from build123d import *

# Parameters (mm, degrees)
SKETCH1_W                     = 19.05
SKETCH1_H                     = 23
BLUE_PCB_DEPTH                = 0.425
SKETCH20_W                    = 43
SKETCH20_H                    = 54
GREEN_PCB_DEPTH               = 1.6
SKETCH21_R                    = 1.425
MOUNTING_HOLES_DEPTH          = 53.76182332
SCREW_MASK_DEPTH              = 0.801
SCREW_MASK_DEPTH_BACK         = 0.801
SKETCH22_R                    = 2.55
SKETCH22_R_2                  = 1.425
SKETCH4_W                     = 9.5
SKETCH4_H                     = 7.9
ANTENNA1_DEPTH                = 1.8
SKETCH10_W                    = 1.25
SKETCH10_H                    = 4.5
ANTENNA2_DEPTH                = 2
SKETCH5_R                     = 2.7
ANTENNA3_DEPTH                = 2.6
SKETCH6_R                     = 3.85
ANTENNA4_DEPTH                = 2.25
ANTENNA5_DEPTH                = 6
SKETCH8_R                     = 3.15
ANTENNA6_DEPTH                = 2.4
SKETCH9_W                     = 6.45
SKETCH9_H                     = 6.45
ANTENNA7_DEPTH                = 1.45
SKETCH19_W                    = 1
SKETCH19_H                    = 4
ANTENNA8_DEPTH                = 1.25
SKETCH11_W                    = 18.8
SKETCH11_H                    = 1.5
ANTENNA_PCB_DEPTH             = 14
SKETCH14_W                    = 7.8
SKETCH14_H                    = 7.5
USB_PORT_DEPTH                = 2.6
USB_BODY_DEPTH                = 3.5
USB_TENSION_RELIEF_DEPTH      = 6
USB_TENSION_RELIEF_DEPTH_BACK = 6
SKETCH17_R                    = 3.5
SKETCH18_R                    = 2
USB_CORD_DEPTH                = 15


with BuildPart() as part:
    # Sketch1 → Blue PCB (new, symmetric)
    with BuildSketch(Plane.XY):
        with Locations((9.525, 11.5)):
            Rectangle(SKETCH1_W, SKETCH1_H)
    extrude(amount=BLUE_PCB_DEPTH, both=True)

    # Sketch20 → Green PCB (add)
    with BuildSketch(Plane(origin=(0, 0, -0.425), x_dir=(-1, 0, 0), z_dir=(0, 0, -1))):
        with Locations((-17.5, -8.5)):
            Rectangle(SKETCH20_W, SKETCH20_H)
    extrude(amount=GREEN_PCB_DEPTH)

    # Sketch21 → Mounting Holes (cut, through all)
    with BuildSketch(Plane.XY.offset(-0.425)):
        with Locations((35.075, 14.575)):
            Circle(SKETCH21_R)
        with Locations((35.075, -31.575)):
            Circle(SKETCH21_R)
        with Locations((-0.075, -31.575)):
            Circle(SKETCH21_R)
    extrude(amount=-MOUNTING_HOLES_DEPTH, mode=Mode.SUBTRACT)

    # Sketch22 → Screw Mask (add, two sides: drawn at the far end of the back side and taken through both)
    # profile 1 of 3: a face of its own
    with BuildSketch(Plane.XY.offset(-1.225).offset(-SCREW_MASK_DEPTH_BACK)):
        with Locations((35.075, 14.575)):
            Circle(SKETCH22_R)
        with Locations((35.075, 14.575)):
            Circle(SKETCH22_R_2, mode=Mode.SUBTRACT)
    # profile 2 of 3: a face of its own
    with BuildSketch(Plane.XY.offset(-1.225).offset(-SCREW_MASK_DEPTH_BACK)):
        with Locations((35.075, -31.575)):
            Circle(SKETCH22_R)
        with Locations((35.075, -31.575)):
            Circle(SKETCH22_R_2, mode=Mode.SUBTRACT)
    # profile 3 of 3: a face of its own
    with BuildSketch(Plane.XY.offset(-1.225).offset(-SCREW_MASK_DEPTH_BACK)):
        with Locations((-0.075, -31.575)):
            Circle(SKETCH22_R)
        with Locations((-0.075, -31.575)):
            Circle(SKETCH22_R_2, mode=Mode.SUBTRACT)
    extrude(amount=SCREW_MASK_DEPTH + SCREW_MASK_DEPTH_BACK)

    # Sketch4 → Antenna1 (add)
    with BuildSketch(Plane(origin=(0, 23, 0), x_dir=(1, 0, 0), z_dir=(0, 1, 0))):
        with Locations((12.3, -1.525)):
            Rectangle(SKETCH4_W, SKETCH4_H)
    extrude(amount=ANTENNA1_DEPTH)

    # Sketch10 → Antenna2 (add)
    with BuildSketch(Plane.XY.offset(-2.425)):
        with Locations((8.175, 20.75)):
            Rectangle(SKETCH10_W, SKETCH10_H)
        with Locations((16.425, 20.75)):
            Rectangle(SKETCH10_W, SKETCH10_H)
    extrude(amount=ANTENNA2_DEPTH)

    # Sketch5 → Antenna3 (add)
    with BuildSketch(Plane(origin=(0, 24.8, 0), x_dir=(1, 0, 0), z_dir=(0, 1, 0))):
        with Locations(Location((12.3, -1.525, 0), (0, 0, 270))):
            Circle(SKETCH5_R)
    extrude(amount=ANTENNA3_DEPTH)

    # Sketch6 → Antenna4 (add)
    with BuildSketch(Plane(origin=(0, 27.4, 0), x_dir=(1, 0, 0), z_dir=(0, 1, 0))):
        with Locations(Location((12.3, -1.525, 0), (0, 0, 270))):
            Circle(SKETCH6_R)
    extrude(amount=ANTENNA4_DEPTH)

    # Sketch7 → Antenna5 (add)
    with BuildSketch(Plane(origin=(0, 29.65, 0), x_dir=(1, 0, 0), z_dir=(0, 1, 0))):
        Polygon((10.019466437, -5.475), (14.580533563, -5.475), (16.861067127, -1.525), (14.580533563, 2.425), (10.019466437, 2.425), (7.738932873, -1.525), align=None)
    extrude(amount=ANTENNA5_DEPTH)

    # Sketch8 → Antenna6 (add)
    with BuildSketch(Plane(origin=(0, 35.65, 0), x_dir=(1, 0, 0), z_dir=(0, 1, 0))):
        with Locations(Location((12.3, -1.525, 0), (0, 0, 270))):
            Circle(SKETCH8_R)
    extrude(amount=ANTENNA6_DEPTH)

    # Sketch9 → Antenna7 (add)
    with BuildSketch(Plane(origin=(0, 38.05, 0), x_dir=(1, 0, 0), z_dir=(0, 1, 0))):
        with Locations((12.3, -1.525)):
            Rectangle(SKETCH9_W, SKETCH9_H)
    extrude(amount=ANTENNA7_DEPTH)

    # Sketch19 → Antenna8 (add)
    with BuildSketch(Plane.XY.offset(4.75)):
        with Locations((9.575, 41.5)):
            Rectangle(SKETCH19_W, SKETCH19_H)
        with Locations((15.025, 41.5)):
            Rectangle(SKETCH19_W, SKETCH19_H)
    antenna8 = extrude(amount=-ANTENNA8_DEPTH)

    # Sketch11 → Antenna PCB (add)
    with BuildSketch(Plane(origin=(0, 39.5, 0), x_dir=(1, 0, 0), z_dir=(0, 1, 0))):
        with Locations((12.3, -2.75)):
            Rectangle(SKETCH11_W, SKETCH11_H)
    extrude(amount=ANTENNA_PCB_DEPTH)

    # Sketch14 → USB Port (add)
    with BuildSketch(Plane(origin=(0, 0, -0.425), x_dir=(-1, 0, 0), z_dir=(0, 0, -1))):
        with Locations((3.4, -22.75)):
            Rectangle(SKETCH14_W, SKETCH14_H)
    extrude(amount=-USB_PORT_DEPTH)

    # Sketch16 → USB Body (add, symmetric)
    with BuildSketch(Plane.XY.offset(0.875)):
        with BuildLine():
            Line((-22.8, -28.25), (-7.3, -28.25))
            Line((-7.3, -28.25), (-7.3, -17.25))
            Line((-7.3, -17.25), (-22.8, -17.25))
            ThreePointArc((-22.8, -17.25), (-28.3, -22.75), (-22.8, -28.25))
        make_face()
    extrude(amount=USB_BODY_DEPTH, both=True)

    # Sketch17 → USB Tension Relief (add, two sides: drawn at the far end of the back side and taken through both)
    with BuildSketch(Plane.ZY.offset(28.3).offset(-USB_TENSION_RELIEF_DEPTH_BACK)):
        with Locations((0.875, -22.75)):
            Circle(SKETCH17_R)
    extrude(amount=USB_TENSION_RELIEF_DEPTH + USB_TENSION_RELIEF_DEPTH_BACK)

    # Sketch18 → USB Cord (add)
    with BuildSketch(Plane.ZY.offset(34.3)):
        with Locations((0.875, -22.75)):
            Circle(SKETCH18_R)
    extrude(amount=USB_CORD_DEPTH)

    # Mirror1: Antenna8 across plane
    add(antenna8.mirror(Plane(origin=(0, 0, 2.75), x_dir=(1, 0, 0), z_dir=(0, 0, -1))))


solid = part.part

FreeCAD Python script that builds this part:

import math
import FreeCAD as App
import Part
import Sketcher
Q = App.Units.Quantity


def add_polygon(sketch, points):
    """Adds a closed chain of lines whose ends are joined by coincident constraints."""
    first, n = sketch.GeometryCount, len(points)
    for a, b in zip(points, points[1:] + points[:1]):
        sketch.addGeometry(Part.LineSegment(App.Vector(*a, 0), App.Vector(*b, 0)), False)
    for i in range(n):
        sketch.addConstraint(Sketcher.Constraint("Coincident", first + i, 2, first + (i + 1) % n, 1))

doc = App.newDocument("Part")
body = doc.addObject("PartDesign::Body", "Body")

# Sketch on XY plane
sketch1 = body.newObject("Sketcher::SketchObject", "Sketch")
sketch1.AttachmentSupport = (doc.getObject("XY_Plane"), [""])
sketch1.MapMode = "FlatFace"
add_polygon(sketch1, [(0, 23), (0, 0), (19.05, 0), (19.05, 23)])  # lines 0-3
sketch1.addConstraint(Sketcher.Constraint("Vertical", 0))
sketch1.addConstraint(Sketcher.Constraint("Horizontal", 1))
sketch1.addConstraint(Sketcher.Constraint("Vertical", 2))
sketch1.addConstraint(Sketcher.Constraint("Horizontal", 3))
sketch1.addConstraint(Sketcher.Constraint("Coincident", 0, 2, -1, 1))
sketch1.addConstraint(Sketcher.Constraint("DistanceY", 0, 2, 0, 1, Q("23 mm")))
sketch1.addConstraint(Sketcher.Constraint("DistanceX", 1, 1, 1, 2, Q("19.05 mm")))
pad1 = body.newObject("PartDesign::Pad", "Pad")
pad1.Profile = sketch1
pad1.Length = 0.85
pad1.Midplane = True

# Sketch on XY plane
sketch2 = body.newObject("Sketcher::SketchObject", "Sketch001")
sketch2.AttachmentSupport = (doc.getObject("XY_Plane"), [""])
sketch2.MapMode = "FlatFace"
sketch2.AttachmentOffset = App.Placement(App.Vector(0, 0, -0.425), App.Rotation())
add_polygon(sketch2, [(39, 18.5), (39, -35.5), (-4, -35.5), (-4, 18.5)])  # lines 0-3
sketch2.addConstraint(Sketcher.Constraint("Vertical", 0))
sketch2.addConstraint(Sketcher.Constraint("Horizontal", 1))
sketch2.addConstraint(Sketcher.Constraint("Vertical", 2))
sketch2.addConstraint(Sketcher.Constraint("Horizontal", 3))
sketch2.addConstraint(Sketcher.Constraint("DistanceX", 1, 2, 1, 1, Q("43 mm")))
sketch2.addConstraint(Sketcher.Constraint("DistanceY", 0, 2, 0, 1, Q("54 mm")))
sketch2.addConstraint(Sketcher.Constraint("DistanceX", -1, 1, 0, 2, Q("39 mm")))
sketch2.addConstraint(Sketcher.Constraint("DistanceY", 0, 2, -1, 1, Q("35.5 mm")))
pad2 = body.newObject("PartDesign::Pad", "Pad001")
pad2.Profile = sketch2
pad2.Length = 1.6
pad2.Reversed = True

# Sketch on XY plane
sketch3 = body.newObject("Sketcher::SketchObject", "Sketch002")
sketch3.AttachmentSupport = (doc.getObject("XY_Plane"), [""])
sketch3.MapMode = "FlatFace"
sketch3.AttachmentOffset = App.Placement(App.Vector(0, 0, -0.425), App.Rotation())
sketch3.addGeometry(Part.Circle(App.Vector(35.075, 14.575, 0), App.Vector(0, 0, 1), 1.425), False)
sketch3.addGeometry(Part.Circle(App.Vector(35.075, -31.575, 0), App.Vector(0, 0, 1), 1.425), False)
sketch3.addGeometry(Part.Circle(App.Vector(-0.075, -31.575, 0), App.Vector(0, 0, 1), 1.425), False)
sketch3.addConstraint(Sketcher.Constraint("Equal", 0, 1))
sketch3.addConstraint(Sketcher.Constraint("Equal", 1, 2))
sketch3.addConstraint(Sketcher.Constraint("Horizontal", 1, 3, 2, 3))
sketch3.addConstraint(Sketcher.Constraint("Vertical", 0, 3, 1, 3))
sketch3.addConstraint(Sketcher.Constraint("Diameter", 0, Q("2.85 mm")))
sketch3.addConstraint(Sketcher.Constraint("DistanceY", 1, 3, 0, 3, Q("46.15 mm")))
sketch3.addConstraint(Sketcher.Constraint("DistanceX", 2, 3, 1, 3, Q("35.15 mm")))
sketch3.addConstraint(Sketcher.Constraint("DistanceX", -1, 1, 0, 3, Q("35.075 mm")))
sketch3.addConstraint(Sketcher.Constraint("DistanceY", -1, 1, 0, 3, Q("14.575 mm")))
pocket1 = body.newObject("PartDesign::Pocket", "Pocket")
pocket1.Profile = sketch3
pocket1.Type = "ThroughAll"

# Sketch on XY plane
sketch4 = body.newObject("Sketcher::SketchObject", "Sketch003")
sketch4.AttachmentSupport = (doc.getObject("XY_Plane"), [""])
sketch4.MapMode = "FlatFace"
sketch4.AttachmentOffset = App.Placement(App.Vector(0, 0, -1.225), App.Rotation())
sketch4.addGeometry(Part.Circle(App.Vector(35.075, 14.575, 0), App.Vector(0, 0, 1), 2.55), False)
sketch4.addGeometry(Part.Circle(App.Vector(35.075, 14.575, 0), App.Vector(0, 0, 1), 1.425), False)
sketch4.addGeometry(Part.Circle(App.Vector(35.075, -31.575, 0), App.Vector(0, 0, 1), 2.55), False)
sketch4.addGeometry(Part.Circle(App.Vector(35.075, -31.575, 0), App.Vector(0, 0, 1), 1.425), False)
sketch4.addGeometry(Part.Circle(App.Vector(-0.075, -31.575, 0), App.Vector(0, 0, 1), 2.55), False)
sketch4.addGeometry(Part.Circle(App.Vector(-0.075, -31.575, 0), App.Vector(0, 0, 1), 1.425), False)
sketch4.addConstraint(Sketcher.Constraint("Coincident", 1, 3, 0, 3))
sketch4.addConstraint(Sketcher.Constraint("Coincident", 3, 3, 2, 3))
sketch4.addConstraint(Sketcher.Constraint("Coincident", 5, 3, 4, 3))
sketch4.addConstraint(Sketcher.Constraint("Equal", 0, 2))
sketch4.addConstraint(Sketcher.Constraint("Equal", 1, 3))
sketch4.addConstraint(Sketcher.Constraint("Equal", 2, 4))
sketch4.addConstraint(Sketcher.Constraint("Equal", 3, 5))
sketch4.addConstraint(Sketcher.Constraint("Horizontal", 3, 3, 4, 3))
sketch4.addConstraint(Sketcher.Constraint("Vertical", 1, 3, 2, 3))
sketch4.addConstraint(Sketcher.Constraint("Diameter", 0, Q("5.1 mm")))
sketch4.addConstraint(Sketcher.Constraint("Diameter", 1, Q("2.85 mm")))
sketch4.addConstraint(Sketcher.Constraint("DistanceY", 2, 3, 0, 3, Q("46.15 mm")))
sketch4.addConstraint(Sketcher.Constraint("DistanceX", 4, 3, 2, 3, Q("35.15 mm")))
sketch4.addConstraint(Sketcher.Constraint("DistanceX", -1, 1, 0, 3, Q("35.075 mm")))
sketch4.addConstraint(Sketcher.Constraint("DistanceY", -1, 1, 0, 3, Q("14.575 mm")))
pad3 = body.newObject("PartDesign::Pad", "Pad002")
pad3.Profile = sketch4
pad3.Type = "TwoLengths"
pad3.Length = 0.801
pad3.Length2 = 0.801

# Sketch on XZ plane
sketch5 = body.newObject("Sketcher::SketchObject", "Sketch004")
sketch5.AttachmentSupport = (doc.getObject("XZ_Plane"), [""])
sketch5.MapMode = "FlatFace"
sketch5.AttachmentOffset = App.Placement(App.Vector(0, 0, -23), App.Rotation())
add_polygon(sketch5, [(7.55, -2.425), (7.55, 5.475), (17.05, 5.475), (17.05, -2.425)])  # lines 0-3
sketch5.addConstraint(Sketcher.Constraint("Vertical", 0))
sketch5.addConstraint(Sketcher.Constraint("Horizontal", 1))
sketch5.addConstraint(Sketcher.Constraint("Vertical", 2))
sketch5.addConstraint(Sketcher.Constraint("Horizontal", 3))
sketch5.addConstraint(Sketcher.Constraint("DistanceX", 1, 1, 1, 2, Q("9.5 mm")))
sketch5.addConstraint(Sketcher.Constraint("DistanceY", 0, 1, 0, 2, Q("7.9 mm")))
sketch5.addConstraint(Sketcher.Constraint("DistanceX", -1, 1, 0, 2, Q("7.55 mm")))
sketch5.addConstraint(Sketcher.Constraint("DistanceY", -1, 1, 0, 2, Q("5.475 mm")))
pad4 = body.newObject("PartDesign::Pad", "Pad003")
pad4.Profile = sketch5
pad4.Length = 1.8
pad4.Reversed = True

# Sketch on XY plane
sketch6 = body.newObject("Sketcher::SketchObject", "Sketch005")
sketch6.AttachmentSupport = (doc.getObject("XY_Plane"), [""])
sketch6.MapMode = "FlatFace"
sketch6.AttachmentOffset = App.Placement(App.Vector(0, 0, -2.425), App.Rotation())
add_polygon(sketch6, [(7.55, 23), (7.55, 18.5), (8.8, 18.5), (8.8, 23)])  # lines 0-3
add_polygon(sketch6, [(15.8, 23), (15.8, 18.5), (17.05, 18.5), (17.05, 23)])  # lines 4-7
sketch6.addConstraint(Sketcher.Constraint("Vertical", 0))
sketch6.addConstraint(Sketcher.Constraint("Horizontal", 1))
sketch6.addConstraint(Sketcher.Constraint("Vertical", 2))
sketch6.addConstraint(Sketcher.Constraint("Horizontal", 3))
sketch6.addConstraint(Sketcher.Constraint("Vertical", 4))
sketch6.addConstraint(Sketcher.Constraint("Horizontal", 5))
sketch6.addConstraint(Sketcher.Constraint("Vertical", 6))
sketch6.addConstraint(Sketcher.Constraint("Horizontal", 7))
sketch6.addConstraint(Sketcher.Constraint("Horizontal", 1, 2, 4, 2))
sketch6.addConstraint(Sketcher.Constraint("Horizontal", 3, 2, 6, 2))
sketch6.addConstraint(Sketcher.Constraint("Equal", 3, 5))
sketch6.addConstraint(Sketcher.Constraint("DistanceY", 0, 2, 0, 1, Q("4.5 mm")))
sketch6.addConstraint(Sketcher.Constraint("DistanceY", -1, 1, 2, 2, Q("23 mm")))
sketch6.addConstraint(Sketcher.Constraint("DistanceX", 1, 2, 4, 2, Q("7 mm")))
sketch6.addConstraint(Sketcher.Constraint("DistanceX", 1, 1, 1, 2, Q("1.25 mm")))
sketch6.addConstraint(Sketcher.Constraint("DistanceX", -1, 1, 1, 2, Q("8.8 mm")))
pad5 = body.newObject("PartDesign::Pad", "Pad004")
pad5.Profile = sketch6
pad5.Length = 2

# Sketch on XZ plane
sketch7 = body.newObject("Sketcher::SketchObject", "Sketch006")
sketch7.AttachmentSupport = (doc.getObject("XZ_Plane"), [""])
sketch7.MapMode = "FlatFace"
sketch7.AttachmentOffset = App.Placement(App.Vector(0, 0, -24.8), App.Rotation())
sketch7.addGeometry(Part.Circle(App.Vector(12.3, 1.525, 0), App.Vector(0, 0, 1), 2.7), False)
sketch7.addConstraint(Sketcher.Constraint("Diameter", 0, Q("5.4 mm")))
sketch7.addConstraint(Sketcher.Constraint("DistanceX", -1, 1, 0, 3, Q("12.3 mm")))
sketch7.addConstraint(Sketcher.Constraint("DistanceY", -1, 1, 0, 3, Q("1.525 mm")))
pad6 = body.newObject("PartDesign::Pad", "Pad005")
pad6.Profile = sketch7
pad6.Length = 2.6
pad6.Reversed = True

# Sketch on XZ plane
sketch8 = body.newObject("Sketcher::SketchObject", "Sketch007")
sketch8.AttachmentSupport = (doc.getObject("XZ_Plane"), [""])
sketch8.MapMode = "FlatFace"
sketch8.AttachmentOffset = App.Placement(App.Vector(0, 0, -27.4), App.Rotation())
sketch8.addGeometry(Part.Circle(App.Vector(12.3, 1.525, 0), App.Vector(0, 0, 1), 3.85), False)
sketch8.addConstraint(Sketcher.Constraint("Diameter", 0, Q("7.7 mm")))
sketch8.addConstraint(Sketcher.Constraint("DistanceX", -1, 1, 0, 3, Q("12.3 mm")))
sketch8.addConstraint(Sketcher.Constraint("DistanceY", -1, 1, 0, 3, Q("1.525 mm")))
pad7 = body.newObject("PartDesign::Pad", "Pad006")
pad7.Profile = sketch8
pad7.Length = 2.25
pad7.Reversed = True

# Sketch on XZ plane
sketch9 = body.newObject("Sketcher::SketchObject", "Sketch008")
sketch9.AttachmentSupport = (doc.getObject("XZ_Plane"), [""])
sketch9.MapMode = "FlatFace"
sketch9.AttachmentOffset = App.Placement(App.Vector(0, 0, -29.65), App.Rotation())
add_polygon(sketch9, [(10.019466, 5.475), (14.580534, 5.475), (16.861067, 1.525), (14.580534, -2.425), (10.019466, -2.425), (7.738933, 1.525)])  # lines 0-5
sketch9.addConstraint(Sketcher.Constraint("Horizontal", 0))
sketch9.addConstraint(Sketcher.Constraint("Horizontal", 3))
sketch9.addConstraint(Sketcher.Constraint("Parallel", 1, 4))
sketch9.addConstraint(Sketcher.Constraint("Parallel", 2, 5))
sketch9.addConstraint(Sketcher.Constraint("Horizontal", 1, 2, 4, 2))
sketch9.addConstraint(Sketcher.Constraint("Vertical", 0, 2, 2, 2))
sketch9.addConstraint(Sketcher.Constraint("Vertical", 3, 2, 5, 2))
sketch9.addConstraint(Sketcher.Constraint("Angle", 1, Q("-60 deg")))
sketch9.addConstraint(Sketcher.Constraint("DistanceY", 2, 2, 0, 2, Q("7.9 mm")))
sketch9.addConstraint(Sketcher.Constraint("DistanceY", -1, 1, 0, 2, Q("5.475 mm")))
sketch9.addConstraint(Sketcher.Constraint("DistanceX", 3, 2, 1, 2, Q("6.841601 mm")))
sketch9.addConstraint(Sketcher.Constraint("DistanceX", -1, 1, 0, 2, Q("14.580534 mm")))
pad8 = body.newObject("PartDesign::Pad", "Pad007")
pad8.Profile = sketch9
pad8.Length = 6
pad8.Reversed = True

# Sketch on XZ plane
sketch10 = body.newObject("Sketcher::SketchObject", "Sketch009")
sketch10.AttachmentSupport = (doc.getObject("XZ_Plane"), [""])
sketch10.MapMode = "FlatFace"
sketch10.AttachmentOffset = App.Placement(App.Vector(0, 0, -35.65), App.Rotation())
sketch10.addGeometry(Part.Circle(App.Vector(12.3, 1.525, 0), App.Vector(0, 0, 1), 3.15), False)
sketch10.addConstraint(Sketcher.Constraint("Diameter", 0, Q("6.3 mm")))
sketch10.addConstraint(Sketcher.Constraint("DistanceX", -1, 1, 0, 3, Q("12.3 mm")))
sketch10.addConstraint(Sketcher.Constraint("DistanceY", -1, 1, 0, 3, Q("1.525 mm")))
pad9 = body.newObject("PartDesign::Pad", "Pad008")
pad9.Profile = sketch10
pad9.Length = 2.4
pad9.Reversed = True

# Sketch on XZ plane
sketch11 = body.newObject("Sketcher::SketchObject", "Sketch010")
sketch11.AttachmentSupport = (doc.getObject("XZ_Plane"), [""])
sketch11.MapMode = "FlatFace"
sketch11.AttachmentOffset = App.Placement(App.Vector(0, 0, -38.05), App.Rotation())
add_polygon(sketch11, [(9.075, -1.7), (9.075, 4.75), (15.525, 4.75), (15.525, -1.7)])  # lines 0-3
sketch11.addConstraint(Sketcher.Constraint("Vertical", 0))
sketch11.addConstraint(Sketcher.Constraint("Horizontal", 1))
sketch11.addConstraint(Sketcher.Constraint("Vertical", 2))
sketch11.addConstraint(Sketcher.Constraint("Horizontal", 3))
sketch11.addConstraint(Sketcher.Constraint("Equal", 3, 0))
sketch11.addConstraint(Sketcher.Constraint("DistanceX", 1, 1, 1, 2, Q("6.45 mm")))
sketch11.addConstraint(Sketcher.Constraint("DistanceY", 2, 2, -1, 1, Q("1.7 mm")))
sketch11.addConstraint(Sketcher.Constraint("DistanceX", -1, 1, 0, 2, Q("9.075 mm")))
pad10 = body.newObject("PartDesign::Pad", "Pad009")
pad10.Profile = sketch11
pad10.Length = 1.45
pad10.Reversed = True

# Sketch on XY plane
sketch12 = body.newObject("Sketcher::SketchObject", "Sketch011")
sketch12.AttachmentSupport = (doc.getObject("XY_Plane"), [""])
sketch12.MapMode = "FlatFace"
sketch12.AttachmentOffset = App.Placement(App.Vector(0, 0, 4.75), App.Rotation())
add_polygon(sketch12, [(9.075, 43.5), (9.075, 39.5), (10.075, 39.5), (10.075, 43.5)])  # lines 0-3
add_polygon(sketch12, [(14.525, 43.5), (14.525, 39.5), (15.525, 39.5), (15.525, 43.5)])  # lines 4-7
sketch12.addConstraint(Sketcher.Constraint("Vertical", 0))
sketch12.addConstraint(Sketcher.Constraint("Horizontal", 1))
sketch12.addConstraint(Sketcher.Constraint("Vertical", 2))
sketch12.addConstraint(Sketcher.Constraint("Horizontal", 3))
sketch12.addConstraint(Sketcher.Constraint("Vertical", 4))
sketch12.addConstraint(Sketcher.Constraint("Horizontal", 5))
sketch12.addConstraint(Sketcher.Constraint("Vertical", 6))
sketch12.addConstraint(Sketcher.Constraint("Horizontal", 7))
sketch12.addConstraint(Sketcher.Constraint("Horizontal", 1, 2, 4, 2))
sketch12.addConstraint(Sketcher.Constraint("Horizontal", 3, 2, 6, 2))
sketch12.addConstraint(Sketcher.Constraint("Equal", 3, 5))
sketch12.addConstraint(Sketcher.Constraint("DistanceX", 1, 1, 1, 2, Q("1 mm")))
sketch12.addConstraint(Sketcher.Constraint("DistanceY", 0, 2, 0, 1, Q("4 mm")))
sketch12.addConstraint(Sketcher.Constraint("DistanceY", -1, 1, 0, 2, Q("39.5 mm")))
sketch12.addConstraint(Sketcher.Constraint("DistanceX", 1, 2, 4, 2, Q("4.45 mm")))
sketch12.addConstraint(Sketcher.Constraint("DistanceX", -1, 1, 0, 2, Q("9.075 mm")))
pad11 = body.newObject("PartDesign::Pad", "Pad010")
pad11.Profile = sketch12
pad11.Length = 1.25
pad11.Reversed = True

# Sketch on XZ plane
sketch13 = body.newObject("Sketcher::SketchObject", "Sketch012")
sketch13.AttachmentSupport = (doc.getObject("XZ_Plane"), [""])
sketch13.MapMode = "FlatFace"
sketch13.AttachmentOffset = App.Placement(App.Vector(0, 0, -39.5), App.Rotation())
add_polygon(sketch13, [(2.9, 2), (2.9, 3.5), (21.7, 3.5), (21.7, 2)])  # lines 0-3
sketch13.addConstraint(Sketcher.Constraint("Vertical", 0))
sketch13.addConstraint(Sketcher.Constraint("Horizontal", 1))
sketch13.addConstraint(Sketcher.Constraint("Vertical", 2))
sketch13.addConstraint(Sketcher.Constraint("Horizontal", 3))
sketch13.addConstraint(Sketcher.Constraint("DistanceX", 1, 1, 1, 2, Q("18.8 mm")))
sketch13.addConstraint(Sketcher.Constraint("DistanceY", 0, 1, 0, 2, Q("1.5 mm")))
sketch13.addConstraint(Sketcher.Constraint("DistanceY", -1, 1, 2, 2, Q("2 mm")))
sketch13.addConstraint(Sketcher.Constraint("DistanceX", -1, 1, 0, 2, Q("2.9 mm")))
pad12 = body.newObject("PartDesign::Pad", "Pad011")
pad12.Profile = sketch13
pad12.Length = 14
pad12.Reversed = True

# Sketch on XY plane
sketch14 = body.newObject("Sketcher::SketchObject", "Sketch013")
sketch14.AttachmentSupport = (doc.getObject("XY_Plane"), [""])
sketch14.MapMode = "FlatFace"
sketch14.AttachmentOffset = App.Placement(App.Vector(0, 0, -0.425), App.Rotation())
add_polygon(sketch14, [(0.5, -19), (0.5, -26.5), (-7.3, -26.5), (-7.3, -19)])  # lines 0-3
sketch14.addConstraint(Sketcher.Constraint("Vertical", 0))
sketch14.addConstraint(Sketcher.Constraint("Horizontal", 1))
sketch14.addConstraint(Sketcher.Constraint("Vertical", 2))
sketch14.addConstraint(Sketcher.Constraint("Horizontal", 3))
sketch14.addConstraint(Sketcher.Constraint("DistanceX", 1, 2, 1, 1, Q("7.8 mm")))
sketch14.addConstraint(Sketcher.Constraint("DistanceY", 0, 2, 0, 1, Q("7.5 mm")))
sketch14.addConstraint(Sketcher.Constraint("DistanceY", 2, 2, -1, 1, Q("19 mm")))
sketch14.addConstraint(Sketcher.Constraint("DistanceX", -1, 1, 0, 2, Q("0.5 mm")))
pad13 = body.newObject("PartDesign::Pad", "Pad012")
pad13.Profile = sketch14
pad13.Length = 2.6

# Sketch on XY plane
sketch15 = body.newObject("Sketcher::SketchObject", "Sketch014")
sketch15.AttachmentSupport = (doc.getObject("XY_Plane"), [""])
sketch15.MapMode = "FlatFace"
sketch15.AttachmentOffset = App.Placement(App.Vector(0, 0, 0.875), App.Rotation())
sketch15.addGeometry(Part.LineSegment(App.Vector(-22.8, -28.25, 0), App.Vector(-7.3, -28.25, 0)), False)
sketch15.addGeometry(Part.LineSegment(App.Vector(-7.3, -28.25, 0), App.Vector(-7.3, -17.25, 0)), False)
sketch15.addGeometry(Part.LineSegment(App.Vector(-7.3, -17.25, 0), App.Vector(-22.8, -17.25, 0)), False)
sketch15.addGeometry(Part.ArcOfCircle(Part.Circle(App.Vector(-22.8, -22.75, 0), App.Vector(0, 0, 1), 5.5), math.radians(90), math.radians(270)), False)
sketch15.addConstraint(Sketcher.Constraint("Coincident", 0, 2, 1, 1))
sketch15.addConstraint(Sketcher.Constraint("Coincident", 1, 2, 2, 1))
sketch15.addConstraint(Sketcher.Constraint("Tangent", 2, 2, 3, 1))
sketch15.addConstraint(Sketcher.Constraint("Tangent", 3, 2, 0, 1))
sketch15.addConstraint(Sketcher.Constraint("Horizontal", 0))
sketch15.addConstraint(Sketcher.Constraint("Vertical", 1))
sketch15.addConstraint(Sketcher.Constraint("Horizontal", 2))
sketch15.addConstraint(Sketcher.Constraint("Radius", 3, Q("5.5 mm")))
sketch15.addConstraint(Sketcher.Constraint("DistanceX", 0, 1, 0, 2, Q("15.5 mm")))
sketch15.addConstraint(Sketcher.Constraint("DistanceX", 3, 3, -1, 1, Q("22.8 mm")))
sketch15.addConstraint(Sketcher.Constraint("DistanceY", 3, 3, -1, 1, Q("22.75 mm")))
pad14 = body.newObject("PartDesign::Pad", "Pad013")
pad14.Profile = sketch15
pad14.Length = 7
pad14.Midplane = True

# Sketch on YZ plane
sketch16 = body.newObject("Sketcher::SketchObject", "Sketch015")
sketch16.AttachmentSupport = (doc.getObject("YZ_Plane"), [""])
sketch16.MapMode = "FlatFace"
sketch16.AttachmentOffset = App.Placement(App.Vector(0, 0, -28.3), App.Rotation())
sketch16.addGeometry(Part.Circle(App.Vector(-22.75, 0.875, 0), App.Vector(0, 0, 1), 3.5), False)
sketch16.addConstraint(Sketcher.Constraint("Diameter", 0, Q("7 mm")))
sketch16.addConstraint(Sketcher.Constraint("DistanceX", 0, 3, -1, 1, Q("22.75 mm")))
sketch16.addConstraint(Sketcher.Constraint("DistanceY", -1, 1, 0, 3, Q("0.875 mm")))
pad15 = body.newObject("PartDesign::Pad", "Pad014")
pad15.Profile = sketch16
pad15.Type = "TwoLengths"
pad15.Length = 6
pad15.Length2 = 6
pad15.Reversed = True

# Sketch on YZ plane
sketch17 = body.newObject("Sketcher::SketchObject", "Sketch016")
sketch17.AttachmentSupport = (doc.getObject("YZ_Plane"), [""])
sketch17.MapMode = "FlatFace"
sketch17.AttachmentOffset = App.Placement(App.Vector(0, 0, -34.3), App.Rotation())
sketch17.addGeometry(Part.Circle(App.Vector(-22.75, 0.875, 0), App.Vector(0, 0, 1), 2), False)
sketch17.addConstraint(Sketcher.Constraint("Diameter", 0, Q("4 mm")))
sketch17.addConstraint(Sketcher.Constraint("DistanceX", 0, 3, -1, 1, Q("22.75 mm")))
sketch17.addConstraint(Sketcher.Constraint("DistanceY", -1, 1, 0, 3, Q("0.875 mm")))
pad16 = body.newObject("PartDesign::Pad", "Pad015")
pad16.Profile = sketch17
pad16.Length = 15
pad16.Reversed = True
doc.recompute()

datumplane = body.newObject("PartDesign::Plane", "DatumPlane")
datumplane.AttachmentSupport = (doc.getObject("XY_Plane"), [""])
datumplane.MapMode = "FlatFace"
datumplane.AttachmentOffset = App.Placement(App.Vector(0, 0, 2.75), App.Rotation())
mirrored = body.newObject("PartDesign::Mirrored", "Mirrored")
mirrored.Originals = [pad11]
mirrored.MirrorPlane = (datumplane, [""])
body.Tip = mirrored

doc.recompute()
